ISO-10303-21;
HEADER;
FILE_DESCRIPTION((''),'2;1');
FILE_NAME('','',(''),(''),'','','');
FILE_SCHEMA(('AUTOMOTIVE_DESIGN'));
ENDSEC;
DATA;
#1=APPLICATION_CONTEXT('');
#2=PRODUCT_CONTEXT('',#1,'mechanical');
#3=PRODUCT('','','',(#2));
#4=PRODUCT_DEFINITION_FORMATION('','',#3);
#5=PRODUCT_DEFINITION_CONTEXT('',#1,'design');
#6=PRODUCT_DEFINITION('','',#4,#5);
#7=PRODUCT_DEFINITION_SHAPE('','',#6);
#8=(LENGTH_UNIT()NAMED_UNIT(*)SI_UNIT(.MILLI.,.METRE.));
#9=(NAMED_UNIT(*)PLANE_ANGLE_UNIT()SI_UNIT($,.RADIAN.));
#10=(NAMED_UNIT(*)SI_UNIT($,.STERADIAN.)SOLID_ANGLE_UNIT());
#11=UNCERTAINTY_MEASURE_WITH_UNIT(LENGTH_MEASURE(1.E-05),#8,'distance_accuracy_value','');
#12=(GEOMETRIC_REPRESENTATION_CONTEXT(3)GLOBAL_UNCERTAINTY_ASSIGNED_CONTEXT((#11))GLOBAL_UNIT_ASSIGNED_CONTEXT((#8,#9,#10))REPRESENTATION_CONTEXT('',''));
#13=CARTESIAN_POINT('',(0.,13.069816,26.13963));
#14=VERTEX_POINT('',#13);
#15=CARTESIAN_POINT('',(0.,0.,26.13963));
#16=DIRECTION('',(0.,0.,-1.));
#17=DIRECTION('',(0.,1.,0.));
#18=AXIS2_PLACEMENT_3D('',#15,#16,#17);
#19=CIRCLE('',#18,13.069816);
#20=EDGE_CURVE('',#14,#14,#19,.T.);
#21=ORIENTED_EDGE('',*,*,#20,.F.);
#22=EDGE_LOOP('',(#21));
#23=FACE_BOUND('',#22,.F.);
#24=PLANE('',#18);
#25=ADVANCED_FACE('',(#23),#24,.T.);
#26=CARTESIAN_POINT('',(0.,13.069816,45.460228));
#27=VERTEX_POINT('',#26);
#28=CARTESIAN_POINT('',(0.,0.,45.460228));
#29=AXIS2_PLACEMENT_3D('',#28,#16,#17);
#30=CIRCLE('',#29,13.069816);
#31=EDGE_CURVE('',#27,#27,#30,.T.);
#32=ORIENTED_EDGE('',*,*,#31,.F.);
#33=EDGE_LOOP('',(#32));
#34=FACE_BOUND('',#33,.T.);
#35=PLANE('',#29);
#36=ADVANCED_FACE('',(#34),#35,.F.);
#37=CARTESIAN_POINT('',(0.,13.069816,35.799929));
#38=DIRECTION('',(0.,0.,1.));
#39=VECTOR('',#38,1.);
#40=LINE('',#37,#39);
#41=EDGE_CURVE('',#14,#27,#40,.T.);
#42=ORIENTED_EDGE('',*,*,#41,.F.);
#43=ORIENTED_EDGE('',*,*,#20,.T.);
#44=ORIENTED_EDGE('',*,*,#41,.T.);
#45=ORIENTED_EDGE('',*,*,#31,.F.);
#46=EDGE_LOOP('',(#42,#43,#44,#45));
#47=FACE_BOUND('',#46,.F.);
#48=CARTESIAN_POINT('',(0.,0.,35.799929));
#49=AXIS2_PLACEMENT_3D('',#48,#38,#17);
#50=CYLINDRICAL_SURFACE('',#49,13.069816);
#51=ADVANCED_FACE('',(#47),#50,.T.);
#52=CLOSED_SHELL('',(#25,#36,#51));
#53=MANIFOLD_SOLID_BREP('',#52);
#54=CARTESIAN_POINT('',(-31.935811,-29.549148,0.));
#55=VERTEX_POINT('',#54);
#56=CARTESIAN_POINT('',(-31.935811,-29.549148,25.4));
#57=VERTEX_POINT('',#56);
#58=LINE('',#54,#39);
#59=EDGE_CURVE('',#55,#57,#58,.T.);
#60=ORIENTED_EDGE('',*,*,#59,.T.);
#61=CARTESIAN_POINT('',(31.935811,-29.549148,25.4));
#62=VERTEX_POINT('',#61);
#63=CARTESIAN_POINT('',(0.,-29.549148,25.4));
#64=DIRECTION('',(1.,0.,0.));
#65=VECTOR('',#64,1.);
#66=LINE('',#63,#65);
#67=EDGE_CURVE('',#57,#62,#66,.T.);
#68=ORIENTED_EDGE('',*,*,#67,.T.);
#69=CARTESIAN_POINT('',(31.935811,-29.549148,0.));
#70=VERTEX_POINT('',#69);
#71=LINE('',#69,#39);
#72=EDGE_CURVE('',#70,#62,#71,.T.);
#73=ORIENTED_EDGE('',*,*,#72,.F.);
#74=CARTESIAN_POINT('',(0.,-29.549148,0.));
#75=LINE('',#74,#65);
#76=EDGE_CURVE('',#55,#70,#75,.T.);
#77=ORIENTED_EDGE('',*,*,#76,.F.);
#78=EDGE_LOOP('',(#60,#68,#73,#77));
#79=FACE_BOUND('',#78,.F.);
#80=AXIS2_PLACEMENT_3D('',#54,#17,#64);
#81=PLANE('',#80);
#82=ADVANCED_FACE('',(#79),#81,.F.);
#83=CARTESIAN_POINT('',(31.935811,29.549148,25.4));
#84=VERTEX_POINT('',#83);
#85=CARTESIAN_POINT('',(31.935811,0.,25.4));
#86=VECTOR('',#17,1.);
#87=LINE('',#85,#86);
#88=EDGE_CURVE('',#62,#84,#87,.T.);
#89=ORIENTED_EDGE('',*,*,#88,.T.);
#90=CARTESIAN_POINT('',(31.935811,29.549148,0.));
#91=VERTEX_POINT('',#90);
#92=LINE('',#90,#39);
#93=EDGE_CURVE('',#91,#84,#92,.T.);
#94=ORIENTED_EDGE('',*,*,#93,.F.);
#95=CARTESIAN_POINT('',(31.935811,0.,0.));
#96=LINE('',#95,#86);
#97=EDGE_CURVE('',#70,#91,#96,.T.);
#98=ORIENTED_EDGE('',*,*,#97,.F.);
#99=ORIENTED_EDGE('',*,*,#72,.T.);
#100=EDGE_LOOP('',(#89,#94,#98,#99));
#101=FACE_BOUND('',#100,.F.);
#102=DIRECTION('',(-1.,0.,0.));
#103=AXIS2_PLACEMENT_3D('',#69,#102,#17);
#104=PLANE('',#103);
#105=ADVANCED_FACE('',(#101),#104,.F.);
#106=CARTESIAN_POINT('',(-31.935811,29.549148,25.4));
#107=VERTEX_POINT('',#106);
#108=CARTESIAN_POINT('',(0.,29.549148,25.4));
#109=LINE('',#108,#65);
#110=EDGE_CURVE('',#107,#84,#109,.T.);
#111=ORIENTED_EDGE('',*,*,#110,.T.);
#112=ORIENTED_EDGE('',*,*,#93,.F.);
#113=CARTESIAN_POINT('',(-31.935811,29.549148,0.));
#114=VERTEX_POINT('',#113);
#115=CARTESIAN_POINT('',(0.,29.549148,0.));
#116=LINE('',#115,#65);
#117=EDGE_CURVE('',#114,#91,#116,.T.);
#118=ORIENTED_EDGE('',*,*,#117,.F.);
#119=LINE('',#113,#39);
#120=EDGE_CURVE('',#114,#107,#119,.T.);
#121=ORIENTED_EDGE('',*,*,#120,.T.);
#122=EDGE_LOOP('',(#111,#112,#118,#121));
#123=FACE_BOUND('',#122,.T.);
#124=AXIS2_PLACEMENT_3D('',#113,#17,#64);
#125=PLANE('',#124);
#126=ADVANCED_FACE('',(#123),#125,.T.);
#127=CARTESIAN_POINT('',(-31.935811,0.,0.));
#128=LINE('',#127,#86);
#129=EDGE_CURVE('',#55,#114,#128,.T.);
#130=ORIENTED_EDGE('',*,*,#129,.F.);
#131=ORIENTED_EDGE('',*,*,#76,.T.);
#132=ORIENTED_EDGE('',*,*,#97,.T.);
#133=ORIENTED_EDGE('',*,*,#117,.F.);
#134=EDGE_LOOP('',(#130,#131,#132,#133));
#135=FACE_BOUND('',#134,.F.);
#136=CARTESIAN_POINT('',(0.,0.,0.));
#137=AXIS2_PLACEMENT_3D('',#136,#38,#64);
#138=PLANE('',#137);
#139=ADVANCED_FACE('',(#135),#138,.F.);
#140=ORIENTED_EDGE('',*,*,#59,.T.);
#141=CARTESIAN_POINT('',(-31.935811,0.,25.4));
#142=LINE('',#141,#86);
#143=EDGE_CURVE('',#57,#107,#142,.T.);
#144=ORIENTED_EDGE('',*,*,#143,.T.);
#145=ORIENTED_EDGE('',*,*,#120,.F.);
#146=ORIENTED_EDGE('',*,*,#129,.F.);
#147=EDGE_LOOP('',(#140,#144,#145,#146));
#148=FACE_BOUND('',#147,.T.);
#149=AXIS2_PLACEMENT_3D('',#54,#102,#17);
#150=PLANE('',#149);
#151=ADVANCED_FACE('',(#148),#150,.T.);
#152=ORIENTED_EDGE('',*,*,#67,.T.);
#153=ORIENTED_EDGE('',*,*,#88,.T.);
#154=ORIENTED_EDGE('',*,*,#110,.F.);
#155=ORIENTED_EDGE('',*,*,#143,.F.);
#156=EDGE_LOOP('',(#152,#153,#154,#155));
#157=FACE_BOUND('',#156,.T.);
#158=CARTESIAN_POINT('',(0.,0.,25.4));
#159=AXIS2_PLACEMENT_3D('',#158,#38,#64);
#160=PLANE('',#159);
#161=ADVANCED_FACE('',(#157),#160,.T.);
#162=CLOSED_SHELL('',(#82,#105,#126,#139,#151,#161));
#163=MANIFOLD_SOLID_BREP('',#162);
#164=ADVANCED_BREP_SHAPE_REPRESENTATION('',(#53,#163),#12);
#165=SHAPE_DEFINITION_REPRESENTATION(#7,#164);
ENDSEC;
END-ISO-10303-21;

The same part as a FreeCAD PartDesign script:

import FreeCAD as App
import Part
import Sketcher

V = App.Vector
Q = App.Units.Quantity


def add_polygon(sketch, points):
    """Adds a closed chain of lines whose ends are joined by coincident constraints."""
    first, n = sketch.GeometryCount, len(points)
    for a, b in zip(points, points[1:] + points[:1]):
        sketch.addGeometry(Part.LineSegment(App.Vector(*a, 0), App.Vector(*b, 0)), False)
    for i in range(n):
        sketch.addConstraint(Sketcher.Constraint("Coincident", first + i, 2, first + (i + 1) % n, 1))

doc = App.newDocument("Part")
body = doc.addObject("PartDesign::Body", "Body")

# Sketch on XY plane
sketch1 = body.newObject("Sketcher::SketchObject", "Sketch")
sketch1.AttachmentSupport = (doc.getObject("XY_Plane"), [""])
sketch1.MapMode = "FlatFace"
add_polygon(sketch1, [(-32, 30), (-32, -30), (32, -30), (32, 30)])  # lines 0-3
sketch1.addConstraint([
    Sketcher.Constraint("Vertical", 0),
    Sketcher.Constraint("Horizontal", 1),
    Sketcher.Constraint("Vertical", 2),
    Sketcher.Constraint("Horizontal", 3),
    Sketcher.Constraint("Symmetric", 0, 2, 2, 2, -1, 1),
    Sketcher.Constraint("DistanceX", 1, 1, 1, 2, 63.871622),
    Sketcher.Constraint("DistanceY", 0, 2, 0, 1, 59.098296),
])
pad1 = body.newObject("PartDesign::Pad", "Pad")
pad1.Profile = sketch1
pad1.Length = Q("1 in")
body2 = doc.addObject("PartDesign::Body", "Body001")

# Sketch on YZ plane
sketch2 = body2.newObject("Sketcher::SketchObject", "Sketch001")
sketch2.AttachmentSupport = (doc.getObject("YZ_Plane001"), [""])
sketch2.MapMode = "FlatFace"
add_polygon(sketch2, [(0, 45), (0, 26), (13, 26), (13, 45)])  # lines 0-3
sketch2.addConstraint([
    Sketcher.Constraint("Vertical", 0),
    Sketcher.Constraint("Horizontal", 1),
    Sketcher.Constraint("Vertical", 2),
    Sketcher.Constraint("Horizontal", 3),
    Sketcher.Constraint("PointOnObject", 0, 2, -2),
    Sketcher.Constraint("DistanceY", 0, 2, 0, 1, 19.320598),
    Sketcher.Constraint("DistanceX", 1, 1, 1, 2, 13.069816),
    Sketcher.Constraint("DistanceY", -1, 1, 0, 2, 26.13963),
])
revolution = body2.newObject("PartDesign::Revolution", "Revolution")
revolution.Profile = sketch2
revolution.ReferenceAxis = (sketch2, ["V_Axis"])
revolution.Angle = 360

doc.recompute()
